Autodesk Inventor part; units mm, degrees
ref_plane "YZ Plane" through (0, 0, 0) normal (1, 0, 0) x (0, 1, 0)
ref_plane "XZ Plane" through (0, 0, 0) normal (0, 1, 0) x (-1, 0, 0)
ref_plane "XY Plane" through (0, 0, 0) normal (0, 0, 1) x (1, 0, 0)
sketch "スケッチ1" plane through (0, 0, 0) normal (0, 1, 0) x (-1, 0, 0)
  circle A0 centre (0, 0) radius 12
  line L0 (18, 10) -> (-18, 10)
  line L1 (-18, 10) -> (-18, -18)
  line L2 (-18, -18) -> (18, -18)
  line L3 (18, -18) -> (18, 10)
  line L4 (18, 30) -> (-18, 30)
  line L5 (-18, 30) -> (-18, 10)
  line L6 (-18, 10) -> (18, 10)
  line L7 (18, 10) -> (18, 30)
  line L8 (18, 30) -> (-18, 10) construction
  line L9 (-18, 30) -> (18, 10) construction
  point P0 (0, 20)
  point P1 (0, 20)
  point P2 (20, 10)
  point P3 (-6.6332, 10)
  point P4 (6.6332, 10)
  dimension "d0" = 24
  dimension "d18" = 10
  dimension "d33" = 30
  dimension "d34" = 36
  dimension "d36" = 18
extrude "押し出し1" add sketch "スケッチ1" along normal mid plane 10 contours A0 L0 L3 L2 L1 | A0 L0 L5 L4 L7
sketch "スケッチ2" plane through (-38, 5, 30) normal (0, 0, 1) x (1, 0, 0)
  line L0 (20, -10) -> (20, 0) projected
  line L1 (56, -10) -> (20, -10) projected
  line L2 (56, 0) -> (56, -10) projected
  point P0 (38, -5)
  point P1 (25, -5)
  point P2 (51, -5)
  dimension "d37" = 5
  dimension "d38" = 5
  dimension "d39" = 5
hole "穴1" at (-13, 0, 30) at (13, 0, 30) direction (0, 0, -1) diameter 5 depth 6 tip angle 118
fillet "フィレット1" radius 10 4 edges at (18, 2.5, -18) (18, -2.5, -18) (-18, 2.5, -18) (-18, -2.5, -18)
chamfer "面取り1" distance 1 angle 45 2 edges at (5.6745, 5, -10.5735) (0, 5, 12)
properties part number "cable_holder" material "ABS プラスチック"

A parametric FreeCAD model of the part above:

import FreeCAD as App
import Part
import Sketcher
from FreeCAD import Vector


def edges_at(feature, points):
    """Names of the edges that pass closest to the given points."""
    edges = feature.Shape.Edges
    near = lambda p: min(range(len(edges)), key=lambda i: edges[i].distToShape(Part.Vertex(*p))[0])
    return sorted({f"Edge{near(p) + 1}" for p in points})

doc = App.newDocument("Part")
body = doc.addObject("PartDesign::Body", "Body")

# Sketch on XZ plane
sketch1 = body.newObject("Sketcher::SketchObject", "Sketch")
sketch1.AttachmentSupport = (doc.getObject("XZ_Plane"), [""])
sketch1.MapMode = "FlatFace"
sketch1.addGeometry(Part.LineSegment(Vector(-18, -18, 0), Vector(-18, 30, 0)), False)
sketch1.addGeometry(Part.LineSegment(Vector(-18, 30, 0), Vector(18, 30, 0)), False)
sketch1.addGeometry(Part.LineSegment(Vector(18, 30, 0), Vector(18, -18, 0)), False)
sketch1.addGeometry(Part.LineSegment(Vector(18, -18, 0), Vector(-18, -18, 0)), False)
sketch1.addGeometry(Part.Circle(Vector(0, 0, 0), Vector(0, 0, 1), 12), False)
sketch1.addConstraint(Sketcher.Constraint("Coincident", 0, 2, 1, 1))
sketch1.addConstraint(Sketcher.Constraint("Coincident", 1, 2, 2, 1))
sketch1.addConstraint(Sketcher.Constraint("Coincident", 2, 2, 3, 1))
sketch1.addConstraint(Sketcher.Constraint("Coincident", 3, 2, 0, 1))
sketch1.addConstraint(Sketcher.Constraint("Vertical", 0))
sketch1.addConstraint(Sketcher.Constraint("Horizontal", 1))
sketch1.addConstraint(Sketcher.Constraint("Vertical", 2))
sketch1.addConstraint(Sketcher.Constraint("Horizontal", 3))
sketch1.addConstraint(Sketcher.Constraint("Coincident", 4, 3, -1, 1))
sketch1.addConstraint(Sketcher.Constraint("Diameter", 4, 24.0))
sketch1.addConstraint(Sketcher.Constraint("DistanceX", 1, 1, 1, 2, 36.0))
sketch1.addConstraint(Sketcher.Constraint("DistanceX", 0, 2, -1, 1, 18.0))
sketch1.addConstraint(Sketcher.Constraint("DistanceY", -1, 1, 0, 2, 30.0))
sketch1.addConstraint(Sketcher.Constraint("DistanceY", 2, 2, -1, 1, 18.0))
pad1 = body.newObject("PartDesign::Pad", "Pad")
pad1.Profile = sketch1
pad1.Length = 10
pad1.Midplane = True

# Sketch on XY plane
sketch2 = body.newObject("Sketcher::SketchObject", "Sketch001")
sketch2.AttachmentSupport = (doc.getObject("XY_Plane"), [""])
sketch2.MapMode = "FlatFace"
sketch2.AttachmentOffset = App.Placement(Vector(0, 0, 30), App.Rotation())
sketch2.addGeometry(Part.Circle(Vector(-13, 0, 0), Vector(0, 0, 1), 2.5), False)
sketch2.addGeometry(Part.Circle(Vector(13, 0, 0), Vector(0, 0, 1), 2.5), False)
sketch2.addConstraint(Sketcher.Constraint("Equal", 0, 1))
sketch2.addConstraint(Sketcher.Constraint("Symmetric", 0, 3, 1, 3, -1, 1))
sketch2.addConstraint(Sketcher.Constraint("PointOnObject", 0, 3, -1))
sketch2.addConstraint(Sketcher.Constraint("Diameter", 0, 5.0))
sketch2.addConstraint(Sketcher.Constraint("DistanceX", 0, 3, -1, 1, 13.0))
doc.recompute()
hole = body.newObject("PartDesign::Hole", "Hole")
hole.Profile = sketch2
hole.ThreadType = "None"
hole.Diameter = 5
hole.DepthType = "Dimension"
hole.Depth = 6
hole.DrillPoint = "Angled"
hole.DrillPointAngle = 118
doc.recompute()

fillet = body.newObject("PartDesign::Fillet", "Fillet")
fillet.Base = (hole, edges_at(hole, [
    (18, 2.5, -18),
    (18, -2.5, -18),
    (-18, 2.5, -18),
    (-18, -2.5, -18),
]))
fillet.Radius = 10
doc.recompute()

chamfer = body.newObject("PartDesign::Chamfer", "Chamfer")
chamfer.Base = (fillet, edges_at(fillet, [(5.675, 5, -10.573), (0, 5, 12)]))
chamfer.Size = 1

doc.recompute()
